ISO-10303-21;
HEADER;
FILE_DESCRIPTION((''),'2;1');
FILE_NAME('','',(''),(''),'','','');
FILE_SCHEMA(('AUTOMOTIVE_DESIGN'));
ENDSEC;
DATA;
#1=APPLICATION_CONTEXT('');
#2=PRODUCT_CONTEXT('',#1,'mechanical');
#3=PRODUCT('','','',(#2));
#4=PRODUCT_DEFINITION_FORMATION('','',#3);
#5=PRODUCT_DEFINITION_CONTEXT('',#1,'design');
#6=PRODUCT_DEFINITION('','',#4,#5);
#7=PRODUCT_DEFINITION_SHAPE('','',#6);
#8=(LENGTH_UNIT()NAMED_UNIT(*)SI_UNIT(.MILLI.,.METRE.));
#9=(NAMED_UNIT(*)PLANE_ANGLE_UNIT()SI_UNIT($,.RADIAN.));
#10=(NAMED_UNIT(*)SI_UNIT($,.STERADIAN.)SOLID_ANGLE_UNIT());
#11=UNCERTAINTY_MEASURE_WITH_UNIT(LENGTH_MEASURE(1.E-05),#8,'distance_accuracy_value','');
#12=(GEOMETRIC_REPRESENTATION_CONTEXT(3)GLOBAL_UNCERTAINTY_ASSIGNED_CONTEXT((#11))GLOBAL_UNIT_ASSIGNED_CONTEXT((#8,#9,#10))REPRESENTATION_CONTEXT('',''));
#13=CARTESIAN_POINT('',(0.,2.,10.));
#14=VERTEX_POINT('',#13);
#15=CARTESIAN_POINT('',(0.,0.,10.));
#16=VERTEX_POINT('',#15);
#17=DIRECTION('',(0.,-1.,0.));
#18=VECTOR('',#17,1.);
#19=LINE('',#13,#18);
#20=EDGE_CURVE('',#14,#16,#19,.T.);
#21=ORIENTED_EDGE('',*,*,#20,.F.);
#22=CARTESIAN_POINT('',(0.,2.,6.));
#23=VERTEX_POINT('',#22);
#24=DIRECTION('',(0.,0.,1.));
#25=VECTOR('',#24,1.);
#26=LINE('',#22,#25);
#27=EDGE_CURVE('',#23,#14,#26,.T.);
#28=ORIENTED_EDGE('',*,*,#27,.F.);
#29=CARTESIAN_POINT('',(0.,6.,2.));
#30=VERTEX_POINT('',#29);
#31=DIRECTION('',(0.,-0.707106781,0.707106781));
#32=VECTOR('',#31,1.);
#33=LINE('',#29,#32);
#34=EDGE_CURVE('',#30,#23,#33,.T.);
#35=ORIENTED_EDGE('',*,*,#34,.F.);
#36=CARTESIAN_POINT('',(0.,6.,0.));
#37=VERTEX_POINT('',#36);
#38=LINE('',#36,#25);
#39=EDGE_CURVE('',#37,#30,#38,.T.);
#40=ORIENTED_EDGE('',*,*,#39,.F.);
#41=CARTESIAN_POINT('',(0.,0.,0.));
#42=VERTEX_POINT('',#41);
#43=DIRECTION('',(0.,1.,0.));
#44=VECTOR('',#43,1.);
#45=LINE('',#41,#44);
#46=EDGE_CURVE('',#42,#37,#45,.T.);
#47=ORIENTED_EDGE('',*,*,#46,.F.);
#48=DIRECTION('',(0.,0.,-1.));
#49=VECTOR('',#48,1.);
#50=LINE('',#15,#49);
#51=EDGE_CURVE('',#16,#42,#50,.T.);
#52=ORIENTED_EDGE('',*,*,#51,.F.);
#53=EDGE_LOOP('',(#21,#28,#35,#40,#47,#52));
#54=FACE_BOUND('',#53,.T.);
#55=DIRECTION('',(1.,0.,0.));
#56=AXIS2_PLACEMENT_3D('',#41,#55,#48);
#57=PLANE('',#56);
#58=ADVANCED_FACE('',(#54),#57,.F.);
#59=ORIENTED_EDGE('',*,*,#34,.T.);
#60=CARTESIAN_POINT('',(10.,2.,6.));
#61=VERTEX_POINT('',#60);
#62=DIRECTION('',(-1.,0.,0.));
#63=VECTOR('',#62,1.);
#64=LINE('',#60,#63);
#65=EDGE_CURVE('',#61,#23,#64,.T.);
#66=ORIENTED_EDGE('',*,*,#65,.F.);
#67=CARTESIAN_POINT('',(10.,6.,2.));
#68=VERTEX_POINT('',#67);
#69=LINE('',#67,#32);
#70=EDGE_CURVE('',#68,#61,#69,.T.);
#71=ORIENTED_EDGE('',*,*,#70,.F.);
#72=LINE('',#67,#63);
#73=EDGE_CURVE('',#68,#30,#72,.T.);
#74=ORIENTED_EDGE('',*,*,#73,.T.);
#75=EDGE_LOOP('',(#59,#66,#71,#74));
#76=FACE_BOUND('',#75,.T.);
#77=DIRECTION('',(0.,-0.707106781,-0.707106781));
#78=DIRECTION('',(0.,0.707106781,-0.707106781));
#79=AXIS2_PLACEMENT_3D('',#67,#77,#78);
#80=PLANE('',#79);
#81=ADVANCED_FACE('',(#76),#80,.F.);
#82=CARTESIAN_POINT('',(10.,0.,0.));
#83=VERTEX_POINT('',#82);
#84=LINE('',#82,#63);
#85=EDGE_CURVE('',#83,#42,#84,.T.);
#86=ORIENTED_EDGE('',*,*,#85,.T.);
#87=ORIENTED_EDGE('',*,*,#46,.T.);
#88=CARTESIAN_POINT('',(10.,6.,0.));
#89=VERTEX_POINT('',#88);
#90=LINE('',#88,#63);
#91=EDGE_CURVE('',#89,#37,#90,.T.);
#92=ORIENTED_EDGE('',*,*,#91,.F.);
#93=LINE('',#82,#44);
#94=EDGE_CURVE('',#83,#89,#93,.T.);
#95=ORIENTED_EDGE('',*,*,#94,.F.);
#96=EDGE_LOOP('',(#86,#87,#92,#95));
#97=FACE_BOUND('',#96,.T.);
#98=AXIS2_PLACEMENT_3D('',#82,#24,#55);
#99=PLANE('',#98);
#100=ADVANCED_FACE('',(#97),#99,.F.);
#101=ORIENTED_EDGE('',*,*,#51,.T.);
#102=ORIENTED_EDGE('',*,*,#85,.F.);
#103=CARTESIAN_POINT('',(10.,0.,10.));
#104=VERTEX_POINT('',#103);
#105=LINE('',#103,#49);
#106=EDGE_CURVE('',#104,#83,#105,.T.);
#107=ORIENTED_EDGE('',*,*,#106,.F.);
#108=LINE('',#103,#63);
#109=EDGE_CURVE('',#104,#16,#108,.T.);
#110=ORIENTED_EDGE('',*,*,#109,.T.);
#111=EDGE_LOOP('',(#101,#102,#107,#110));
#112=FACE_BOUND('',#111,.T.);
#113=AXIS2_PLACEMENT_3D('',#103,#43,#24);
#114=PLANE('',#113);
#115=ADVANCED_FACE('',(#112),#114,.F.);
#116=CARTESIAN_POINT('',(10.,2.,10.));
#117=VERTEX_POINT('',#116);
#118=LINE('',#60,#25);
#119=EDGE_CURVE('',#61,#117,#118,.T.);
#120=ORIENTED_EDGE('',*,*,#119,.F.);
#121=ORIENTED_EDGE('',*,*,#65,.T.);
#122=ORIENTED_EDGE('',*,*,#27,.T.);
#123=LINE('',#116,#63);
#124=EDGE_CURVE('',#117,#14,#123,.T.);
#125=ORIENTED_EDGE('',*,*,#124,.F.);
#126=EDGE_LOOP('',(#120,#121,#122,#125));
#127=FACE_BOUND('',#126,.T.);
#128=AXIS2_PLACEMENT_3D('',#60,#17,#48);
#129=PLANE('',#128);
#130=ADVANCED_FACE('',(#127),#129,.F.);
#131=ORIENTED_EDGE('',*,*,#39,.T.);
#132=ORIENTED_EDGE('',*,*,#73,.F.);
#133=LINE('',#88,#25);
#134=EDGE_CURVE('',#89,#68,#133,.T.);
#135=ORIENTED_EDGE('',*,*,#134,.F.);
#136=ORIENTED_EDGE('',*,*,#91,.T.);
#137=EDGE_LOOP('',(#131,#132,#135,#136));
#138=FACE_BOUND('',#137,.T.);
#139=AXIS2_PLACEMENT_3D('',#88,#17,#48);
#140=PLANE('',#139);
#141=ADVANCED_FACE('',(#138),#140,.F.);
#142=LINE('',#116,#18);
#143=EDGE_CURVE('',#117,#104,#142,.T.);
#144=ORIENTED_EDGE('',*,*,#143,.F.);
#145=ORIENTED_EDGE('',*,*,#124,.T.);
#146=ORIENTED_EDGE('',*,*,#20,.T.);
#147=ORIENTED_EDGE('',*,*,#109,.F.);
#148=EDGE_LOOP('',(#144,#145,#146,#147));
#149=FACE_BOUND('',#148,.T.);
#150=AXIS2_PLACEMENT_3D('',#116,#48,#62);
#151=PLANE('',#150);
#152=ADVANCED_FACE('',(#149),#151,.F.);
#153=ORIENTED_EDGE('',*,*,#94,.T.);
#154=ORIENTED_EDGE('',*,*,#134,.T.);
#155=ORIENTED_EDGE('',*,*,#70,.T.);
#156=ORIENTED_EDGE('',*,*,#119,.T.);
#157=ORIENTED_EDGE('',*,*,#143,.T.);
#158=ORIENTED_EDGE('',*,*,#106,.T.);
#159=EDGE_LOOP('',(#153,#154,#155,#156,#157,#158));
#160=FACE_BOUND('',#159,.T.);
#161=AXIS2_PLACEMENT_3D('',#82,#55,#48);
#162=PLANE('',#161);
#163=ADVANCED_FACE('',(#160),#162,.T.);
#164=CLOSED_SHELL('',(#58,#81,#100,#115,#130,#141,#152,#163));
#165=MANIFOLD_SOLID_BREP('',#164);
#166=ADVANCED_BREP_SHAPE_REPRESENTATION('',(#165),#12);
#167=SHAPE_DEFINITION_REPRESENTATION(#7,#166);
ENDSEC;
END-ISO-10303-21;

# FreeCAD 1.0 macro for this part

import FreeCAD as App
import Part
import Sketcher
Q = App.Units.Quantity


def add_polygon(sketch, points):
    """Adds a closed chain of lines whose ends are joined by coincident constraints."""
    first, n = sketch.GeometryCount, len(points)
    for a, b in zip(points, points[1:] + points[:1]):
        sketch.addGeometry(Part.LineSegment(App.Vector(*a, 0), App.Vector(*b, 0)), False)
    for i in range(n):
        sketch.addConstraint(Sketcher.Constraint("Coincident", first + i, 2, first + (i + 1) % n, 1))

doc = App.newDocument("Part")
body = doc.addObject("PartDesign::Body", "Body")

# Sketch on YZ plane
sketch1 = body.newObject("Sketcher::SketchObject", "Sketch")
sketch1.AttachmentSupport = (doc.getObject("YZ_Plane"), [""])
sketch1.MapMode = "FlatFace"
add_polygon(sketch1, [(0, 0), (6, 0), (6, 2), (2, 6), (2, 10), (0, 10)])  # lines 0-5
sketch1.addConstraint(Sketcher.Constraint("Horizontal", 0))
sketch1.addConstraint(Sketcher.Constraint("Vertical", 1))
sketch1.addConstraint(Sketcher.Constraint("Vertical", 3))
sketch1.addConstraint(Sketcher.Constraint("Horizontal", 4))
sketch1.addConstraint(Sketcher.Constraint("Vertical", 5))
sketch1.addConstraint(Sketcher.Constraint("Coincident", 5, 2, -1, 1))
sketch1.addConstraint(Sketcher.Constraint("Equal", 4, 1))
sketch1.addConstraint(Sketcher.Constraint("DistanceX", 0, 1, 0, 2, Q("6 mm")))
sketch1.addConstraint(Sketcher.Constraint("DistanceX", 4, 2, 4, 1, Q("2 mm")))
sketch1.addConstraint(Sketcher.Constraint("DistanceY", 3, 1, 3, 2, Q("4 mm")))
sketch1.addConstraint(Sketcher.Constraint("DistanceY", 5, 2, 5, 1, Q("10 mm")))
pad1 = body.newObject("PartDesign::Pad", "Pad")
pad1.Profile = sketch1
pad1.Length = 10

doc.recompute()
